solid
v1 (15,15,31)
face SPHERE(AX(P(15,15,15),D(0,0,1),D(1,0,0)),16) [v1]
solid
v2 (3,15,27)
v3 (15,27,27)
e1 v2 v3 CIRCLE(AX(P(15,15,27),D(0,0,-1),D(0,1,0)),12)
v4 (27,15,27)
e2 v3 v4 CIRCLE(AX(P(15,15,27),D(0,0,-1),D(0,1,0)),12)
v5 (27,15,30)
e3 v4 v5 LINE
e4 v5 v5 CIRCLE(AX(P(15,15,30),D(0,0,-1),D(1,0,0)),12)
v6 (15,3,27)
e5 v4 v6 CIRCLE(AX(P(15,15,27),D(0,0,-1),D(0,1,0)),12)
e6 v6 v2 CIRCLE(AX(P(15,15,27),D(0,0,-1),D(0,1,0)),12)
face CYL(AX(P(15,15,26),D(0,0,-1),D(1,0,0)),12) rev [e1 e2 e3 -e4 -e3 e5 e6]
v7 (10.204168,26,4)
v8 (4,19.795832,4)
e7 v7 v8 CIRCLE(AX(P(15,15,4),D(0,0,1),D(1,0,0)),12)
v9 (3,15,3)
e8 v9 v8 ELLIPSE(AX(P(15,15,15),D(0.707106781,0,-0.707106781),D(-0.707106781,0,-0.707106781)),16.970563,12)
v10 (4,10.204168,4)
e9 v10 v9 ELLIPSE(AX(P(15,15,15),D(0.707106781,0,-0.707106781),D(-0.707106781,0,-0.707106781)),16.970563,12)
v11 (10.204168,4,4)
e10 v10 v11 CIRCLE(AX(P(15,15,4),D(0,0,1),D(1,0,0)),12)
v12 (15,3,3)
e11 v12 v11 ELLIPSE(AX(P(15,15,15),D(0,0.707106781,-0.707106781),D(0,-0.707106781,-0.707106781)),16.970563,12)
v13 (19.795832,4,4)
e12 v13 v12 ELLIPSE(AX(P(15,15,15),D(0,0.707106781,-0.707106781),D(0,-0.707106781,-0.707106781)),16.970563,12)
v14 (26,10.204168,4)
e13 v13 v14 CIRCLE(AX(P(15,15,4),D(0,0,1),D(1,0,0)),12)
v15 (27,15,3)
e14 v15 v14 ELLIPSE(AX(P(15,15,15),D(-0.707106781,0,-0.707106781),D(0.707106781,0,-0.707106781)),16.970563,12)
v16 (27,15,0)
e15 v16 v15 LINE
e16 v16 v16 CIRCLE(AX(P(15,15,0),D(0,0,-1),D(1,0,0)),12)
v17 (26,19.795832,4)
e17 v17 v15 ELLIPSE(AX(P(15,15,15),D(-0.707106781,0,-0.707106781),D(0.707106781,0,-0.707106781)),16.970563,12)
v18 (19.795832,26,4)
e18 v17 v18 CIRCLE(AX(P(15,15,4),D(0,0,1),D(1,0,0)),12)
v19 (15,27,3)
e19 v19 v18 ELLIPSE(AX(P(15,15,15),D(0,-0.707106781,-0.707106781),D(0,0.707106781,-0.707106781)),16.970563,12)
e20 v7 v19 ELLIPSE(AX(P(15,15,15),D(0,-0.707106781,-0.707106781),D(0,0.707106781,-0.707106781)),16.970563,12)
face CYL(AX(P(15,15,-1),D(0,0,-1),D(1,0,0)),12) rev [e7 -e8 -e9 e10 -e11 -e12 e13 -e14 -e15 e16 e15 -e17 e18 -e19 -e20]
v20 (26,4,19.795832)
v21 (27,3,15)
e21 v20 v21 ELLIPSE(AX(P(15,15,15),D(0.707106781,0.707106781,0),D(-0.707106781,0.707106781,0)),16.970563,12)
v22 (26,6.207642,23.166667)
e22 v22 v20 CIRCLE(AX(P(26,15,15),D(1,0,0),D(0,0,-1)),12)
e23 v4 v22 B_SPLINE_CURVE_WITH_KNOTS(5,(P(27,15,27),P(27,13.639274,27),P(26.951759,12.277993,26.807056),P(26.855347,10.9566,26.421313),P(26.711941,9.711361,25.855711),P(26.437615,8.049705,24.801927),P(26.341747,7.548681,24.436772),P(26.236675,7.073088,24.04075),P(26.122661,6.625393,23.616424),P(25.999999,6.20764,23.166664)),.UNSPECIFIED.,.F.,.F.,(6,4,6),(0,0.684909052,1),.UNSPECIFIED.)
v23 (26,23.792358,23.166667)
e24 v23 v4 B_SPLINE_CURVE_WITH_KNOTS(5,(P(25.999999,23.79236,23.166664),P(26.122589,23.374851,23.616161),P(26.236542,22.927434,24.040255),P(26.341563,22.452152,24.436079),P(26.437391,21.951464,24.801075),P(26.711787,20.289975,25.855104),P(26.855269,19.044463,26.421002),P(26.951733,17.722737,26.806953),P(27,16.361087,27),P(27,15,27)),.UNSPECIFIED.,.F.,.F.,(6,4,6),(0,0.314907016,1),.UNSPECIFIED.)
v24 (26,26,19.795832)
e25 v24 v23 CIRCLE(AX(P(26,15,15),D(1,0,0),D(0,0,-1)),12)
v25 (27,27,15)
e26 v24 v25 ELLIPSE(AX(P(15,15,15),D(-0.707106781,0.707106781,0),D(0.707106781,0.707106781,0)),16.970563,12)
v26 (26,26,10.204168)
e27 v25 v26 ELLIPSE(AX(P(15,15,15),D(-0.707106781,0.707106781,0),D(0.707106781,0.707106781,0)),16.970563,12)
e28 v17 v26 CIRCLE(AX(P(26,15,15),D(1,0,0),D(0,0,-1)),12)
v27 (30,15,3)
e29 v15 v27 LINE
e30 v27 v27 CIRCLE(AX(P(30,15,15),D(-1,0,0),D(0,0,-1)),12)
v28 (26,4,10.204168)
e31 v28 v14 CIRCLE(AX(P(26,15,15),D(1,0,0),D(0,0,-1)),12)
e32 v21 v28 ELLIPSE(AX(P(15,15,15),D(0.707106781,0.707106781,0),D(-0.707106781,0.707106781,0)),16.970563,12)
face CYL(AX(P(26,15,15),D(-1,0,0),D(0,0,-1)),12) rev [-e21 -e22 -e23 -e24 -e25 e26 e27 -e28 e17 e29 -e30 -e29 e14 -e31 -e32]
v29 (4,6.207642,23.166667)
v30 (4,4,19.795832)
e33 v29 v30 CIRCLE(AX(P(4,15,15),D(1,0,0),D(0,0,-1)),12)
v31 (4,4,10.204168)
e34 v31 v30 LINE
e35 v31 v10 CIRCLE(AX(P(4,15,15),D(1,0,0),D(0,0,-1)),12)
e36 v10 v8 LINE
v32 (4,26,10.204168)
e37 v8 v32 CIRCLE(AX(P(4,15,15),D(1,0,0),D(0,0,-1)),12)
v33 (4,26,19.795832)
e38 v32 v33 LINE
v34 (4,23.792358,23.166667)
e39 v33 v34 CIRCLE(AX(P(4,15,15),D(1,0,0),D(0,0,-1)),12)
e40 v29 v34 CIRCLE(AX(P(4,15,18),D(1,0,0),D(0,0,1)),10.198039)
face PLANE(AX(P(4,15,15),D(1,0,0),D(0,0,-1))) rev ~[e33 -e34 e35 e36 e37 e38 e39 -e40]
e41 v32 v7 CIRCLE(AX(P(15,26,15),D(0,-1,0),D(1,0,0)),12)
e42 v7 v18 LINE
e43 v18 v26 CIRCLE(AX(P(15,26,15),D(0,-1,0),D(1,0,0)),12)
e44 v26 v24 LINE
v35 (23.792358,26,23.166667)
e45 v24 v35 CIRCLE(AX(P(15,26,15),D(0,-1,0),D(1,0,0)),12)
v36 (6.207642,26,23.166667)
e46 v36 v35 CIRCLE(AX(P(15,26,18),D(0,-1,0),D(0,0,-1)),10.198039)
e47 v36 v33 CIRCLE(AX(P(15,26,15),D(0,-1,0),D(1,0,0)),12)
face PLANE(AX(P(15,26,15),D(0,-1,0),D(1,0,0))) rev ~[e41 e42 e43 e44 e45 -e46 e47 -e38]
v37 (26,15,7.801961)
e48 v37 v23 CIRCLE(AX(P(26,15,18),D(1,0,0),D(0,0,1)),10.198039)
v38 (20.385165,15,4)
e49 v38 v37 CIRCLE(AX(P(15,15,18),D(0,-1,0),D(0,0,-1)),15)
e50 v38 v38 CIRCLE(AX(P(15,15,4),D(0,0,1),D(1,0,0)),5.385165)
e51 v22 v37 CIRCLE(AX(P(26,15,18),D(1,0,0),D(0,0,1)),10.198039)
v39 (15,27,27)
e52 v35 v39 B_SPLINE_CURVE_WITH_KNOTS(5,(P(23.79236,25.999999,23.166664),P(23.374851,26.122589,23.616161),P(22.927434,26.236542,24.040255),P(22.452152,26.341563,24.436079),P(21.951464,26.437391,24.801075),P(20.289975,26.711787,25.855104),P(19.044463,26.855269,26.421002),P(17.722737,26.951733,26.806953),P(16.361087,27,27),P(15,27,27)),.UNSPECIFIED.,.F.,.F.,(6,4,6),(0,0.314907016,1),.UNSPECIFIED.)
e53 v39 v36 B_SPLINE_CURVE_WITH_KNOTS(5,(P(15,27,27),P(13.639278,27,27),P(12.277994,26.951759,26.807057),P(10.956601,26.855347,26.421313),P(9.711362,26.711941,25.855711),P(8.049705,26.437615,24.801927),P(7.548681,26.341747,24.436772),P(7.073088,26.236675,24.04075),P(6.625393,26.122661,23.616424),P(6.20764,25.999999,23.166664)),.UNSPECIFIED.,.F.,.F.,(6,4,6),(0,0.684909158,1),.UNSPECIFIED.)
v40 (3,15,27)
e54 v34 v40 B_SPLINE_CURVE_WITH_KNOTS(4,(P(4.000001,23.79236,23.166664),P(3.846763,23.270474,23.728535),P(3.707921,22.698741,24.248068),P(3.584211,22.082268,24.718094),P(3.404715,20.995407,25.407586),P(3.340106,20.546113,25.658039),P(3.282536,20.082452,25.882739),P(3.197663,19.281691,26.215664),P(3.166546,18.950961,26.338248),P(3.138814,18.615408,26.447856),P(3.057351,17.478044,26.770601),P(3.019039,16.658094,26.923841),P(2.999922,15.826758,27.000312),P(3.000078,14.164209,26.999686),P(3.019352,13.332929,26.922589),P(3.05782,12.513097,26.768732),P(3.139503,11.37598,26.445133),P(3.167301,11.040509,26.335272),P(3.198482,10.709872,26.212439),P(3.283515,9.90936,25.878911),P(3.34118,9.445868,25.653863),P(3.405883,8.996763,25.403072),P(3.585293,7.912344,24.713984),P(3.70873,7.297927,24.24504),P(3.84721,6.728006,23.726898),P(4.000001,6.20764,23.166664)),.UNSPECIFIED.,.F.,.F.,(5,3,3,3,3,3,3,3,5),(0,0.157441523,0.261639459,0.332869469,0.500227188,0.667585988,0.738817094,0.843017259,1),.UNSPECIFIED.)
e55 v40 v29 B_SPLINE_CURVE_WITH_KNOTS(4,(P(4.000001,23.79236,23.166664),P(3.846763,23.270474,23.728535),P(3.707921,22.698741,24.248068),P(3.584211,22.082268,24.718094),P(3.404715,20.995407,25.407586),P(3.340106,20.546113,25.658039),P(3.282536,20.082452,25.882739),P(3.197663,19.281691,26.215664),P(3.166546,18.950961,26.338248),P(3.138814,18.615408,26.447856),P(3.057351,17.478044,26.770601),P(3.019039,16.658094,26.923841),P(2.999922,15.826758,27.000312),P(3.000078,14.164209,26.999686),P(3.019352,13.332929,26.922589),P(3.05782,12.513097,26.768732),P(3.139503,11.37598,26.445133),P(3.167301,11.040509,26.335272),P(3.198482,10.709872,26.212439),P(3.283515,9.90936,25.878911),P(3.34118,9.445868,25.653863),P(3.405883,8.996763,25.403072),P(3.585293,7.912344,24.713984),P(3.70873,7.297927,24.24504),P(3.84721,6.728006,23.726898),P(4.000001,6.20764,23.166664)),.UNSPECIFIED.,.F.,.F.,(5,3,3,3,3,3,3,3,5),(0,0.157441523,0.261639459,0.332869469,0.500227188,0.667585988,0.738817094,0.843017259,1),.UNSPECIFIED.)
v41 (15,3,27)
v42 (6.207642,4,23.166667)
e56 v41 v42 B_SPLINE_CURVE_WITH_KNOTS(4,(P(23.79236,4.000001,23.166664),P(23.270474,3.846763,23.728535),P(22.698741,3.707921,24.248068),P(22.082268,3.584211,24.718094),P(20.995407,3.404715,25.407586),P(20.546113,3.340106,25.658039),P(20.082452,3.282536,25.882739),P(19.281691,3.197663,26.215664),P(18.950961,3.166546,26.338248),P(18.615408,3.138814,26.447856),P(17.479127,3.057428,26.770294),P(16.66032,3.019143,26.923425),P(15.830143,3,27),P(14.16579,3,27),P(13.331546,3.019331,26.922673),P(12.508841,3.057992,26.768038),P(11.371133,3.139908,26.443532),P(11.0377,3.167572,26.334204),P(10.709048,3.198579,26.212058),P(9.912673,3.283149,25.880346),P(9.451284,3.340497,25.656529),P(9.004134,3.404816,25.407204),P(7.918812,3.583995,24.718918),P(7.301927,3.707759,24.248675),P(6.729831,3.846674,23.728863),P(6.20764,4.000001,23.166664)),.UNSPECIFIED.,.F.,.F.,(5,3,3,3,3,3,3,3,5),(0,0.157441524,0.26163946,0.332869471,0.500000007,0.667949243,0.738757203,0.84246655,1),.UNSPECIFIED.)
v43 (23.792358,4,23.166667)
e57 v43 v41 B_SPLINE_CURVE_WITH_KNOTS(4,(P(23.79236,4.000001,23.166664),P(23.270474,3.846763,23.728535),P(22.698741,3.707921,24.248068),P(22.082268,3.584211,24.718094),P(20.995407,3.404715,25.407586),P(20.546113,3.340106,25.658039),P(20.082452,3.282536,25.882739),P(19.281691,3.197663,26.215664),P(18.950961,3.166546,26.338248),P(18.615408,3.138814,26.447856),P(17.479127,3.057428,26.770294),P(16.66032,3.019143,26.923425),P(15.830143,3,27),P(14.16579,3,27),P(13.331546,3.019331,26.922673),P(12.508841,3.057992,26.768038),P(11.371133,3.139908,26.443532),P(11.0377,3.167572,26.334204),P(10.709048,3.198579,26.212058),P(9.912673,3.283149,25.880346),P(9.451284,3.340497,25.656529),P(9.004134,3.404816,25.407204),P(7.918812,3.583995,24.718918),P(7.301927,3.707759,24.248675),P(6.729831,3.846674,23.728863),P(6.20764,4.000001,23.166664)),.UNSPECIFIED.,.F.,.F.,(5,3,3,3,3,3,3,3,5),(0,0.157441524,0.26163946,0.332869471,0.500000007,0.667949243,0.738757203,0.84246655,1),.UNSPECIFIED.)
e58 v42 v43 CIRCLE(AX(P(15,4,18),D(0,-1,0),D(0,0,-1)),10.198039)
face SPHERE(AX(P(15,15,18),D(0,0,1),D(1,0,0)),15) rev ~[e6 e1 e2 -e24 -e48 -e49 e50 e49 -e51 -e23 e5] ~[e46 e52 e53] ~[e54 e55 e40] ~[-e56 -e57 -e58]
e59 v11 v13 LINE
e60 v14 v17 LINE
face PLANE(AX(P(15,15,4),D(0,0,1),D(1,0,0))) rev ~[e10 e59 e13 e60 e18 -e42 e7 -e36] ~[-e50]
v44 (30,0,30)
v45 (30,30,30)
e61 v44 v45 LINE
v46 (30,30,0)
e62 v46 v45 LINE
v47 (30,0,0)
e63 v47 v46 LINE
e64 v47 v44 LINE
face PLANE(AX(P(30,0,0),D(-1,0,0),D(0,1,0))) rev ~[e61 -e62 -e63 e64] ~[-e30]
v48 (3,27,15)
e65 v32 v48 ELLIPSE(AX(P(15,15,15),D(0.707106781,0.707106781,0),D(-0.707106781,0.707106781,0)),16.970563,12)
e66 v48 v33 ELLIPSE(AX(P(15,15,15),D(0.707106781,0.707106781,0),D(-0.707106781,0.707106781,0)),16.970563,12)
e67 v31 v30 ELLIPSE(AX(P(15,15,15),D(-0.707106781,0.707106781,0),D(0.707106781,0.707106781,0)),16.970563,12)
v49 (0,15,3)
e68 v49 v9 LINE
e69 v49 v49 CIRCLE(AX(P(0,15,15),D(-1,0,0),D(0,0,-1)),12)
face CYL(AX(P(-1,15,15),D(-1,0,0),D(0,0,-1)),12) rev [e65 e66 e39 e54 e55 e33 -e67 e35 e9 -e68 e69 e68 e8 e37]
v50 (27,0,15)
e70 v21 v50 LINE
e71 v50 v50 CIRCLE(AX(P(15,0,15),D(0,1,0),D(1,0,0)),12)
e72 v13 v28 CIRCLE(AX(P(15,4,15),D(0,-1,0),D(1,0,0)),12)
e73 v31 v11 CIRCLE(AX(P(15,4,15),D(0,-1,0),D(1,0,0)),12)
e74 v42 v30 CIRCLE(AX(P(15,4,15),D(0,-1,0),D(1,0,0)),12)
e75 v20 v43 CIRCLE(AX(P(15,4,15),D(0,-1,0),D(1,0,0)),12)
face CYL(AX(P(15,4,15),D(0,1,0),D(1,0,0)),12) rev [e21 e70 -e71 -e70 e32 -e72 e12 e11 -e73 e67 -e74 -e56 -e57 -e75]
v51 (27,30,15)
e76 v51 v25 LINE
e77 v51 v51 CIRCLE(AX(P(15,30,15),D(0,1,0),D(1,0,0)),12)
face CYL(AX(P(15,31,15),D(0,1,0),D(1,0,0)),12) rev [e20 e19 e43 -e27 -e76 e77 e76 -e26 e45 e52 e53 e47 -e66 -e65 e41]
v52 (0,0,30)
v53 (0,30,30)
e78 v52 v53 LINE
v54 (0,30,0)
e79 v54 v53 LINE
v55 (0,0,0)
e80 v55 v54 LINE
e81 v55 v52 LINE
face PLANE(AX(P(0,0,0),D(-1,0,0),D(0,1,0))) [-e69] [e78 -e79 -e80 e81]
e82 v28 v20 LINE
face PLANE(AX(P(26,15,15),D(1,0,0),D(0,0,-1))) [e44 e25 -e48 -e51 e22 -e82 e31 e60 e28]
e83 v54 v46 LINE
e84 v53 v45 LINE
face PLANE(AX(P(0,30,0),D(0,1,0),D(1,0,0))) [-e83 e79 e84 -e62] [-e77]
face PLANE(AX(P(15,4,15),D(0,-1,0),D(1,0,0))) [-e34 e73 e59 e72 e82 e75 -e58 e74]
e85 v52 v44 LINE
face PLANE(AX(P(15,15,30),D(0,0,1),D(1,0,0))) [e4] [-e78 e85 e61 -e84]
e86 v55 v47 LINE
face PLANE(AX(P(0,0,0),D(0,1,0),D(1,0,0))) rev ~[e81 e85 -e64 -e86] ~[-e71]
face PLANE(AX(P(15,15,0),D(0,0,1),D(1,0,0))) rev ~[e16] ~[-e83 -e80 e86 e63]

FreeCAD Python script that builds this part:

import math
import FreeCAD as App
import Part
import Sketcher

V = App.Vector


def add_polygon(sketch, points):
    """Adds a closed chain of lines whose ends are joined by coincident constraints."""
    first, n = sketch.GeometryCount, len(points)
    for a, b in zip(points, points[1:] + points[:1]):
        sketch.addGeometry(Part.LineSegment(App.Vector(*a, 0), App.Vector(*b, 0)), False)
    for i in range(n):
        sketch.addConstraint(Sketcher.Constraint("Coincident", first + i, 2, first + (i + 1) % n, 1))

doc = App.newDocument("Part")
params = doc.addObject("Spreadsheet::Sheet", "Params")
for row, (alias, value) in enumerate([
    ("sketch1_diameter", "24 mm"),
    ("pad1_length", "5 mm"),
    ("sketch2_diameter", "24 mm"),
    ("pad2_length", "5 mm"),
    ("sketch3_diameter", "24 mm"),
    ("pad3_length", "5 mm"),
    ("sketch4_diameter", "24 mm"),
    ("pad4_length", "5 mm"),
    ("sketch5_diameter", "24 mm"),
    ("pad5_length", "5 mm"),
    ("sketch6_diameter", "24 mm"),
    ("pad6_length", "5 mm"),
    ("sketch7_radius", "15 mm"),
    ("revolution_angle", "360 deg"),
    ("sketch8_width", "30 mm"),
    ("pad7_length", "30 mm"),
    ("sketch9_radius", "16 mm"),
    ("revolution2_angle", "360 deg"),
], start=1):
    params.set(f"A{row}", alias)
    params.set(f"B{row}", "=" + value)
    params.setAlias(f"B{row}", alias)

body = doc.addObject("PartDesign::Body", "Body")

sketch1 = body.newObject("Sketcher::SketchObject", "Sketch")
sketch1.AttachmentSupport = (doc.getObject("YZ_Plane"), [""])
sketch1.MapMode = "FlatFace"
sketch1.AttachmentOffset = App.Placement(V(0, 0, 26), App.Rotation())
sketch1.addGeometry(Part.Circle(V(15, 15, 0), V(0, 0, 1), 12), False)
sketch1.addConstraint([
    Sketcher.Constraint("Diameter", 0, 24.0),
    Sketcher.Constraint("DistanceX", -1, 1, 0, 3, 15.0),
    Sketcher.Constraint("DistanceY", -1, 1, 0, 3, 15.0),
])
sketch1.setExpression("Constraints[0]", "Params.sketch1_diameter")
pad1 = body.newObject("PartDesign::Pad", "Pad")
pad1.Profile = sketch1
pad1.setExpression("Length", "Params.pad1_length")
body2 = doc.addObject("PartDesign::Body", "Body001")

sketch2 = body2.newObject("Sketcher::SketchObject", "Sketch001")
sketch2.AttachmentSupport = (doc.getObject("YZ_Plane001"), [""])
sketch2.MapMode = "FlatFace"
sketch2.AttachmentOffset = App.Placement(V(0, 0, -1), App.Rotation())
sketch2.addGeometry(Part.Circle(V(15, 15, 0), V(0, 0, 1), 12), False)
sketch2.addConstraint([
    Sketcher.Constraint("Diameter", 0, 24.0),
    Sketcher.Constraint("DistanceX", -1, 1, 0, 3, 15.0),
    Sketcher.Constraint("DistanceY", -1, 1, 0, 3, 15.0),
])
sketch2.setExpression("Constraints[0]", "Params.sketch2_diameter")
pad2 = body2.newObject("PartDesign::Pad", "Pad001")
pad2.Profile = sketch2
pad2.setExpression("Length", "Params.pad2_length")
body3 = doc.addObject("PartDesign::Body", "Body002")

sketch3 = body3.newObject("Sketcher::SketchObject", "Sketch002")
sketch3.AttachmentSupport = (doc.getObject("XZ_Plane002"), [""])
sketch3.MapMode = "FlatFace"
sketch3.AttachmentOffset = App.Placement(V(0, 0, -4), App.Rotation())
sketch3.addGeometry(Part.Circle(V(15, 15, 0), V(0, 0, 1), 12), False)
sketch3.addConstraint([
    Sketcher.Constraint("Diameter", 0, 24.0),
    Sketcher.Constraint("DistanceX", -1, 1, 0, 3, 15.0),
    Sketcher.Constraint("DistanceY", -1, 1, 0, 3, 15.0),
])
sketch3.setExpression("Constraints[0]", "Params.sketch3_diameter")
pad3 = body3.newObject("PartDesign::Pad", "Pad002")
pad3.Profile = sketch3
pad3.setExpression("Length", "Params.pad3_length")
body4 = doc.addObject("PartDesign::Body", "Body003")

sketch4 = body4.newObject("Sketcher::SketchObject", "Sketch003")
sketch4.AttachmentSupport = (doc.getObject("XZ_Plane003"), [""])
sketch4.MapMode = "FlatFace"
sketch4.AttachmentOffset = App.Placement(V(0, 0, -31), App.Rotation())
sketch4.addGeometry(Part.Circle(V(15, 15, 0), V(0, 0, 1), 12), False)
sketch4.addConstraint([
    Sketcher.Constraint("Diameter", 0, 24.0),
    Sketcher.Constraint("DistanceX", -1, 1, 0, 3, 15.0),
    Sketcher.Constraint("DistanceY", -1, 1, 0, 3, 15.0),
])
sketch4.setExpression("Constraints[0]", "Params.sketch4_diameter")
pad4 = body4.newObject("PartDesign::Pad", "Pad003")
pad4.Profile = sketch4
pad4.setExpression("Length", "Params.pad4_length")
body5 = doc.addObject("PartDesign::Body", "Body004")

sketch5 = body5.newObject("Sketcher::SketchObject", "Sketch004")
sketch5.AttachmentSupport = (doc.getObject("XY_Plane004"), [""])
sketch5.MapMode = "FlatFace"
sketch5.AttachmentOffset = App.Placement(V(0, 0, -1), App.Rotation())
sketch5.addGeometry(Part.Circle(V(15, 15, 0), V(0, 0, 1), 12), False)
sketch5.addConstraint([
    Sketcher.Constraint("Diameter", 0, 24.0),
    Sketcher.Constraint("DistanceX", -1, 1, 0, 3, 15.0),
    Sketcher.Constraint("DistanceY", -1, 1, 0, 3, 15.0),
])
sketch5.setExpression("Constraints[0]", "Params.sketch5_diameter")
pad5 = body5.newObject("PartDesign::Pad", "Pad004")
pad5.Profile = sketch5
pad5.setExpression("Length", "Params.pad5_length")
body6 = doc.addObject("PartDesign::Body", "Body005")

sketch6 = body6.newObject("Sketcher::SketchObject", "Sketch005")
sketch6.AttachmentSupport = (doc.getObject("XY_Plane005"), [""])
sketch6.MapMode = "FlatFace"
sketch6.AttachmentOffset = App.Placement(V(0, 0, 26), App.Rotation())
sketch6.addGeometry(Part.Circle(V(15, 15, 0), V(0, 0, 1), 12), False)
sketch6.addConstraint([
    Sketcher.Constraint("Diameter", 0, 24.0),
    Sketcher.Constraint("DistanceX", -1, 1, 0, 3, 15.0),
    Sketcher.Constraint("DistanceY", -1, 1, 0, 3, 15.0),
])
sketch6.setExpression("Constraints[0]", "Params.sketch6_diameter")
pad6 = body6.newObject("PartDesign::Pad", "Pad005")
pad6.Profile = sketch6
pad6.setExpression("Length", "Params.pad6_length")
body7 = doc.addObject("PartDesign::Body", "Body006")

sketch7 = body7.newObject("Sketcher::SketchObject", "Sketch006")
sketch7.AttachmentSupport = (doc.getObject("XZ_Plane006"), [""])
sketch7.MapMode = "FlatFace"
sketch7.AttachmentOffset = App.Placement(V(0, 0, -15), App.Rotation())
sketch7.addGeometry([
    Part.ArcOfCircle(Part.Circle(V(15, 18, 0), V(0, 0, 1), 15), math.radians(-90), math.radians(90)),
    Part.LineSegment(V(15, 33, 0), V(15, 3, 0)),
], False)
sketch7.addGeometry(Part.LineSegment(V(15, 3, 0), V(15, 33, 0)), True)
sketch7.addConstraint([
    Sketcher.Constraint("Coincident", 0, 1, 1, 2),
    Sketcher.Constraint("Coincident", 1, 1, 0, 2),
    Sketcher.Constraint("Vertical", 1),
    Sketcher.Constraint("Vertical", 2),
    Sketcher.Constraint("Coincident", 2, 1, 0, 1),
    Sketcher.Constraint("Equal", 1, 2),
    Sketcher.Constraint("Radius", 0, 15.0),
    Sketcher.Constraint("DistanceX", -1, 1, 0, 3, 15.0),
    Sketcher.Constraint("DistanceY", -1, 1, 0, 3, 18.0),
    Sketcher.Constraint("DistanceX", -1, 1, 0, 1, 15.0),
])
sketch7.setExpression("Constraints[6]", "Params.sketch7_radius")
revolution = body7.newObject("PartDesign::Revolution", "Revolution")
revolution.Profile = sketch7
revolution.ReferenceAxis = (sketch7, ["Axis0"])
revolution.setExpression("Angle", "Params.revolution_angle")
body8 = doc.addObject("PartDesign::Body", "Body007")

sketch8 = body8.newObject("Sketcher::SketchObject", "Sketch007")
sketch8.AttachmentSupport = (doc.getObject("XY_Plane007"), [""])
sketch8.MapMode = "FlatFace"
add_polygon(sketch8, [(0, 30), (0, 0), (30, 0), (30, 30)])
sketch8.addConstraint([
    Sketcher.Constraint("Vertical", 0),
    Sketcher.Constraint("Horizontal", 1),
    Sketcher.Constraint("Vertical", 2),
    Sketcher.Constraint("Horizontal", 3),
    Sketcher.Constraint("Coincident", 0, 2, -1, 1),
    Sketcher.Constraint("Equal", 3, 0),
    Sketcher.Constraint("DistanceX", 1, 1, 1, 2, 30.0),
])
sketch8.setExpression("Constraints[10]", "Params.sketch8_width")
pad7 = body8.newObject("PartDesign::Pad", "Pad006")
pad7.Profile = sketch8
pad7.setExpression("Length", "Params.pad7_length")
doc.recompute()

boolean = body8.newObject("PartDesign::Boolean", "Boolean")
boolean.Type = "Cut"
boolean.addObjects([body7])
doc.recompute()

boolean2 = body8.newObject("PartDesign::Boolean", "Boolean001")
boolean2.Type = "Cut"
boolean2.addObjects([body6])
doc.recompute()

boolean3 = body8.newObject("PartDesign::Boolean", "Boolean002")
boolean3.Type = "Cut"
boolean3.addObjects([body5])
doc.recompute()

boolean4 = body8.newObject("PartDesign::Boolean", "Boolean003")
boolean4.Type = "Cut"
boolean4.addObjects([body4])
doc.recompute()

boolean5 = body8.newObject("PartDesign::Boolean", "Boolean004")
boolean5.Type = "Cut"
boolean5.addObjects([body3])
doc.recompute()

boolean6 = body8.newObject("PartDesign::Boolean", "Boolean005")
boolean6.Type = "Cut"
boolean6.addObjects([body2])
doc.recompute()

boolean7 = body8.newObject("PartDesign::Boolean", "Boolean006")
boolean7.Type = "Cut"
boolean7.addObjects([body])
body9 = doc.addObject("PartDesign::Body", "Body008")

sketch9 = body9.newObject("Sketcher::SketchObject", "Sketch008")
sketch9.AttachmentSupport = (doc.getObject("XZ_Plane008"), [""])
sketch9.MapMode = "FlatFace"
sketch9.AttachmentOffset = App.Placement(V(0, 0, -15), App.Rotation())
sketch9.addGeometry([
    Part.ArcOfCircle(Part.Circle(V(15, 15, 0), V(0, 0, 1), 16), math.radians(-90), math.radians(90)),
    Part.LineSegment(V(15, 31, 0), V(15, -1, 0)),
], False)
sketch9.addGeometry(Part.LineSegment(V(15, -1, 0), V(15, 31, 0)), True)
sketch9.addConstraint([
    Sketcher.Constraint("Coincident", 0, 1, 1, 2),
    Sketcher.Constraint("Coincident", 1, 1, 0, 2),
    Sketcher.Constraint("Vertical", 1),
    Sketcher.Constraint("Vertical", 2),
    Sketcher.Constraint("Coincident", 2, 1, 0, 1),
    Sketcher.Constraint("Equal", 1, 2),
    Sketcher.Constraint("Radius", 0, 16.0),
    Sketcher.Constraint("DistanceX", -1, 1, 0, 3, 15.0),
    Sketcher.Constraint("DistanceY", -1, 1, 0, 3, 15.0),
    Sketcher.Constraint("DistanceX", -1, 1, 0, 1, 15.0),
])
sketch9.setExpression("Constraints[6]", "Params.sketch9_radius")
revolution2 = body9.newObject("PartDesign::Revolution", "Revolution001")
revolution2.Profile = sketch9
revolution2.ReferenceAxis = (sketch9, ["Axis0"])
revolution2.setExpression("Angle", "Params.revolution2_angle")

doc.recompute()
